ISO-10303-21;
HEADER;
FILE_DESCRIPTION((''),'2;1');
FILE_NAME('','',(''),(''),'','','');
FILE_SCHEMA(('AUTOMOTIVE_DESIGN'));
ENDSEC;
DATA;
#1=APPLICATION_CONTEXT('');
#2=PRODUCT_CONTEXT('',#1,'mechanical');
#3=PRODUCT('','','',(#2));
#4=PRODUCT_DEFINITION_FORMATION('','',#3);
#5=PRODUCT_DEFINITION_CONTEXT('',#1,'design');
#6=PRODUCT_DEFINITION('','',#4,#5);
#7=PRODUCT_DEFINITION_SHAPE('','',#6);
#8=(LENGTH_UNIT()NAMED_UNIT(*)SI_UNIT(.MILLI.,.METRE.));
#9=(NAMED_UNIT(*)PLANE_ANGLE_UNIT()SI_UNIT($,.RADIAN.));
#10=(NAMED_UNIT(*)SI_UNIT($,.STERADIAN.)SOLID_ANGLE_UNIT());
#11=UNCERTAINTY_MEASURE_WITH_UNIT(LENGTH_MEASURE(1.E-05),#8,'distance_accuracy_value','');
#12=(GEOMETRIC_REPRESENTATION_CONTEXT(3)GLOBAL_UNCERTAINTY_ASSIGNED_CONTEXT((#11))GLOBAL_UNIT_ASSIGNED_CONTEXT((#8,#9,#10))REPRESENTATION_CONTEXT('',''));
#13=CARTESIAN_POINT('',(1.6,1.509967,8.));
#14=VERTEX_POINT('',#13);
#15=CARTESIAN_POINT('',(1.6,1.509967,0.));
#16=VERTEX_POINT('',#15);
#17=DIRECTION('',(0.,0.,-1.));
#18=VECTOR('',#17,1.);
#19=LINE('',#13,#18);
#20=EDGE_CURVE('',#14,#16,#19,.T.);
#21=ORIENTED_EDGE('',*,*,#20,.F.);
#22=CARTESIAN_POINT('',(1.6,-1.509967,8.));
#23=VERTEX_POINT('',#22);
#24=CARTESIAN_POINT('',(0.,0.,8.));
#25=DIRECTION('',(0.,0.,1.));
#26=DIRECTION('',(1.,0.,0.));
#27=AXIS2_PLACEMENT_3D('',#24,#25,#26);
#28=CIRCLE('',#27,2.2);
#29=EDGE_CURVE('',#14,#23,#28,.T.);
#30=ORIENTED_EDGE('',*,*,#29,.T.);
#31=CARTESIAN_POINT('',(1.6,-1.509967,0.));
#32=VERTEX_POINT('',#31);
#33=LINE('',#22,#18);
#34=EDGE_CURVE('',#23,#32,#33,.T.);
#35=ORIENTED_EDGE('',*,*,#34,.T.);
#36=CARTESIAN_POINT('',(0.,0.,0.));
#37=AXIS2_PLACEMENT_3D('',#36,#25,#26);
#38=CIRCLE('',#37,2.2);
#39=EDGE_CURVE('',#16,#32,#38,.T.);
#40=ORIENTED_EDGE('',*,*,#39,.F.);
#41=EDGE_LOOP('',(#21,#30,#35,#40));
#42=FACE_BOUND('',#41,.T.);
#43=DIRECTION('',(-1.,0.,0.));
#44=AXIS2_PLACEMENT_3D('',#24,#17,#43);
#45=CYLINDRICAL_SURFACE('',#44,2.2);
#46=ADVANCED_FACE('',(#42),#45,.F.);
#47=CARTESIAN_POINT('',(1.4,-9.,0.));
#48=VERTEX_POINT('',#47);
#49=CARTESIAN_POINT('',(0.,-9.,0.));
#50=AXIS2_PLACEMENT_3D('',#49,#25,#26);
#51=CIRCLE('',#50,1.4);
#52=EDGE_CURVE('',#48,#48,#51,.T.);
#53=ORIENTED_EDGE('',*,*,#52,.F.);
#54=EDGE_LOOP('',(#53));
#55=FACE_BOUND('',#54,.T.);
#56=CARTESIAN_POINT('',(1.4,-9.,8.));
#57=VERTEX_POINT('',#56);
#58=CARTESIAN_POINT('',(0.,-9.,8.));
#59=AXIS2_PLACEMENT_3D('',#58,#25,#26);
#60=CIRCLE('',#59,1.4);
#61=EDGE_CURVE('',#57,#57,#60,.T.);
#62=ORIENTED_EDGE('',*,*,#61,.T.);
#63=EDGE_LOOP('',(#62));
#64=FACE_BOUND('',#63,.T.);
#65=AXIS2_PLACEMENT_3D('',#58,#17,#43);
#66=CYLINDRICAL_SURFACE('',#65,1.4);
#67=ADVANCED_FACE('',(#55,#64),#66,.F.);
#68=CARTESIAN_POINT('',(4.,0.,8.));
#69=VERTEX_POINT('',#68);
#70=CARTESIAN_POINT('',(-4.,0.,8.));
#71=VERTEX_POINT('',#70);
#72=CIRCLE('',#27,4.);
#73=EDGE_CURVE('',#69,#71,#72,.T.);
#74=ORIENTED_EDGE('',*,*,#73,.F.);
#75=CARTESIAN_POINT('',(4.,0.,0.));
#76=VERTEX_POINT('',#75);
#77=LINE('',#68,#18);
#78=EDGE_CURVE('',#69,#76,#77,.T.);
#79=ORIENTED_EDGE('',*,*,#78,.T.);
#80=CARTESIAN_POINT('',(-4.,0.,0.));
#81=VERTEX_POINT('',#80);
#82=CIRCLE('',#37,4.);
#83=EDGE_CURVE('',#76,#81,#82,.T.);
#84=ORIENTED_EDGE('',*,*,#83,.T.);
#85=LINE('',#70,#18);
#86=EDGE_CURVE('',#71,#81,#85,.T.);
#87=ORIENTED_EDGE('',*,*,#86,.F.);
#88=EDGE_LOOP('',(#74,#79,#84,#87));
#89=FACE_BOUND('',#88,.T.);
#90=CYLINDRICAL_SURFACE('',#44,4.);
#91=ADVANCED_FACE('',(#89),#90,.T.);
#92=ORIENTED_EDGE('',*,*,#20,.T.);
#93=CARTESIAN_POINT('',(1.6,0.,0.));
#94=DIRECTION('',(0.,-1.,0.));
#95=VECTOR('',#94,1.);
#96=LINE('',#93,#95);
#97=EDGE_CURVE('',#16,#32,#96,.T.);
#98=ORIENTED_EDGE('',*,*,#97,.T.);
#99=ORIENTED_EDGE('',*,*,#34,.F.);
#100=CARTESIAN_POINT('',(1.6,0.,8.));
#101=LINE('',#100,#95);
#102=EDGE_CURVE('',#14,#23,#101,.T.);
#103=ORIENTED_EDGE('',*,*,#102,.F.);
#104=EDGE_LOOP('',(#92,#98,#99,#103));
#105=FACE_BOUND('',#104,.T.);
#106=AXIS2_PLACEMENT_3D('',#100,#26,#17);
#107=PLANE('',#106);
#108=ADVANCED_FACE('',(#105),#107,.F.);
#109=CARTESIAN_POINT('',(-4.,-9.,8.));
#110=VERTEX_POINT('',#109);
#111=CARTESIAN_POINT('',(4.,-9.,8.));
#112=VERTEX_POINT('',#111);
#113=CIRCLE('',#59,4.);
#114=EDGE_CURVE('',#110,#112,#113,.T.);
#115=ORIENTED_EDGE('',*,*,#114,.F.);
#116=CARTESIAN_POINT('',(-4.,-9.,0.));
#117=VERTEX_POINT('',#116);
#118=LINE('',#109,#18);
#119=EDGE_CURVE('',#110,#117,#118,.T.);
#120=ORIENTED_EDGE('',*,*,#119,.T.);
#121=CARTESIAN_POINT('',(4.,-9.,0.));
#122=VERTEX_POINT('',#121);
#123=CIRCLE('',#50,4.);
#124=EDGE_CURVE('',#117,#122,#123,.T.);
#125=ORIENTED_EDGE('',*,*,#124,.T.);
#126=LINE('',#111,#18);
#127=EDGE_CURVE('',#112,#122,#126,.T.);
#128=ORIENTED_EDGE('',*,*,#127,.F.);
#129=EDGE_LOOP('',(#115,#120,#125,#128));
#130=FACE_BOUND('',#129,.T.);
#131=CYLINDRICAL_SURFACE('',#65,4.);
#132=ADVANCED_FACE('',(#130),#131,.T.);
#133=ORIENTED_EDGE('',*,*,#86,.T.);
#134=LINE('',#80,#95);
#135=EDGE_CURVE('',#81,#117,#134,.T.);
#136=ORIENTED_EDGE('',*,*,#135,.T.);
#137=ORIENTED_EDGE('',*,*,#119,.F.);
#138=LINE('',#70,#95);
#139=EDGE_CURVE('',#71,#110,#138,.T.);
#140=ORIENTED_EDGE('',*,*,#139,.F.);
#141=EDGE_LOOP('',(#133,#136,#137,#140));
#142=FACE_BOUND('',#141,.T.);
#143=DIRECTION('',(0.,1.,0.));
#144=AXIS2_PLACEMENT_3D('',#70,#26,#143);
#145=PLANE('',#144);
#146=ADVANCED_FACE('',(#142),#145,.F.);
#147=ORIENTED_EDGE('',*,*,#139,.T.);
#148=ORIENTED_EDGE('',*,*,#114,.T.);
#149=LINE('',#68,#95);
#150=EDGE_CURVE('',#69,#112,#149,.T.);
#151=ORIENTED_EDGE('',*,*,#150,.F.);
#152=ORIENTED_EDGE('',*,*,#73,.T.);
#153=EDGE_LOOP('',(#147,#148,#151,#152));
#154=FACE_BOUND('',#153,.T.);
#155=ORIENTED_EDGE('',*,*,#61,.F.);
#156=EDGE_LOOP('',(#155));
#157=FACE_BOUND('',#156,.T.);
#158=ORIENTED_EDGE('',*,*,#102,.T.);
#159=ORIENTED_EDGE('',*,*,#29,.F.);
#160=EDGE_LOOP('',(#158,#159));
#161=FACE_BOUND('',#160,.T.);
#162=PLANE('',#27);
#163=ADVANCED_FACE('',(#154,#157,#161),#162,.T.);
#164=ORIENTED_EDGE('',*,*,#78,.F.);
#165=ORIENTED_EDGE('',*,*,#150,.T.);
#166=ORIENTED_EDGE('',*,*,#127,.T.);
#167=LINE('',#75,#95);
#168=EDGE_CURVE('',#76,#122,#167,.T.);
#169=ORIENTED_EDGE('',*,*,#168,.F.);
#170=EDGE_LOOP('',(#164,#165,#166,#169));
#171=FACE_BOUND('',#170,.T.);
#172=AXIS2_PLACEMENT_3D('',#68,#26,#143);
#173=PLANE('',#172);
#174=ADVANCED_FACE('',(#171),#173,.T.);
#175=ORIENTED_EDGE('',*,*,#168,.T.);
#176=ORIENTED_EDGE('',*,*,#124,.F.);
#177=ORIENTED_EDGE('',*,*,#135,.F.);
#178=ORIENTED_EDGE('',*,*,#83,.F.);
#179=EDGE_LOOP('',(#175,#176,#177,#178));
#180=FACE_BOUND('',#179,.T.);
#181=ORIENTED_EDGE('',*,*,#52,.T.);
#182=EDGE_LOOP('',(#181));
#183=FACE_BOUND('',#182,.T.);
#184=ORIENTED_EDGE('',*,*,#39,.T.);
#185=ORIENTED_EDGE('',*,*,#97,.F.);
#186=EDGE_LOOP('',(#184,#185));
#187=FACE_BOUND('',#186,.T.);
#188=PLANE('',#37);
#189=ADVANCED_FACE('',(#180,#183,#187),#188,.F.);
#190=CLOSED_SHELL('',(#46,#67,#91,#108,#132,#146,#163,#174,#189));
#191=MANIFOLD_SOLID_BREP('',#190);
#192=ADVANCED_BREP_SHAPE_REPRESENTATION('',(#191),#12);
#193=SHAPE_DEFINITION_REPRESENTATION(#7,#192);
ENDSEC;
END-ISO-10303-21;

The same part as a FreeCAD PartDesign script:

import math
import FreeCAD as App
import Part
import Sketcher

doc = App.newDocument("Part")
body = doc.addObject("PartDesign::Body", "Body")

sketch1 = doc.addObject("Sketcher::SketchObject", "Sketch")
body.addObject(sketch1)
sketch1.AttachmentSupport = (doc.XY_Plane, [""])
sketch1.MapMode = "FlatFace"
sketch1.addGeometry(Part.LineSegment(App.Vector(4, -9, 0), App.Vector(4, 0, 0)), False)
sketch1.addGeometry(Part.ArcOfCircle(Part.Circle(App.Vector(0, 0, 0), App.Vector(0, 0, 1), 4), math.radians(0), math.radians(180)), False)
sketch1.addGeometry(Part.LineSegment(App.Vector(-4, 0, 0), App.Vector(-4, -9, 0)), False)
sketch1.addGeometry(Part.ArcOfCircle(Part.Circle(App.Vector(0, -9, 0), App.Vector(0, 0, 1), 4), math.radians(180), math.radians(360)), False)
sketch1.addConstraint(Sketcher.Constraint("Tangent", 0, 2, 1, 1))
sketch1.addConstraint(Sketcher.Constraint("Tangent", 1, 2, 2, 1))
sketch1.addConstraint(Sketcher.Constraint("Tangent", 2, 2, 3, 1))
sketch1.addConstraint(Sketcher.Constraint("Tangent", 3, 2, 0, 1))
sketch1.addConstraint(Sketcher.Constraint("Vertical", 0))
sketch1.addConstraint(Sketcher.Constraint("Vertical", 2))
sketch1.addConstraint(Sketcher.Constraint("Coincident", 1, 3, -1, 1))
sketch1.addConstraint(Sketcher.Constraint("Radius", 1, 4.0))
sketch1.addConstraint(Sketcher.Constraint("DistanceY", 0, 1, 0, 2, 9.0))
pad1 = doc.addObject("PartDesign::Pad", "Pad")
body.addObject(pad1)
pad1.Profile = sketch1
pad1.Length = 8

sketch2 = doc.addObject("Sketcher::SketchObject", "Sketch001")
body.addObject(sketch2)
sketch2.AttachmentSupport = (doc.XY_Plane, [""])
sketch2.MapMode = "FlatFace"
sketch2.addGeometry(Part.LineSegment(App.Vector(1.6, -1.5, 0), App.Vector(1.6, 1.5, 0)), False)
sketch2.addGeometry(Part.ArcOfCircle(Part.Circle(App.Vector(0, 0, 0), App.Vector(0, 0, 1), 2.2), math.radians(43), math.radians(317)), False)
sketch2.addGeometry(Part.Circle(App.Vector(0, -9, 0), App.Vector(0, 0, 1), 1.4), False)
sketch2.addConstraint(Sketcher.Constraint("Coincident", 0, 1, 1, 2))
sketch2.addConstraint(Sketcher.Constraint("Coincident", 1, 1, 0, 2))
sketch2.addConstraint(Sketcher.Constraint("Vertical", 0))
sketch2.addConstraint(Sketcher.Constraint("Coincident", 1, 3, -1, 1))
sketch2.addConstraint(Sketcher.Constraint("PointOnObject", 2, 3, -2))
sketch2.addConstraint(Sketcher.Constraint("Diameter", 2, 2.8))
sketch2.addConstraint(Sketcher.Constraint("Radius", 1, 2.2))
sketch2.addConstraint(Sketcher.Constraint("DistanceY", 2, 3, -1, 1, 9.0))
sketch2.addConstraint(Sketcher.Constraint("DistanceX", -1, 1, 0, 1, 1.6))
pocket1 = doc.addObject("PartDesign::Pocket", "Pocket")
body.addObject(pocket1)
pocket1.Profile = sketch2
pocket1.Length = 8
pocket1.Reversed = True

doc.recompute()
